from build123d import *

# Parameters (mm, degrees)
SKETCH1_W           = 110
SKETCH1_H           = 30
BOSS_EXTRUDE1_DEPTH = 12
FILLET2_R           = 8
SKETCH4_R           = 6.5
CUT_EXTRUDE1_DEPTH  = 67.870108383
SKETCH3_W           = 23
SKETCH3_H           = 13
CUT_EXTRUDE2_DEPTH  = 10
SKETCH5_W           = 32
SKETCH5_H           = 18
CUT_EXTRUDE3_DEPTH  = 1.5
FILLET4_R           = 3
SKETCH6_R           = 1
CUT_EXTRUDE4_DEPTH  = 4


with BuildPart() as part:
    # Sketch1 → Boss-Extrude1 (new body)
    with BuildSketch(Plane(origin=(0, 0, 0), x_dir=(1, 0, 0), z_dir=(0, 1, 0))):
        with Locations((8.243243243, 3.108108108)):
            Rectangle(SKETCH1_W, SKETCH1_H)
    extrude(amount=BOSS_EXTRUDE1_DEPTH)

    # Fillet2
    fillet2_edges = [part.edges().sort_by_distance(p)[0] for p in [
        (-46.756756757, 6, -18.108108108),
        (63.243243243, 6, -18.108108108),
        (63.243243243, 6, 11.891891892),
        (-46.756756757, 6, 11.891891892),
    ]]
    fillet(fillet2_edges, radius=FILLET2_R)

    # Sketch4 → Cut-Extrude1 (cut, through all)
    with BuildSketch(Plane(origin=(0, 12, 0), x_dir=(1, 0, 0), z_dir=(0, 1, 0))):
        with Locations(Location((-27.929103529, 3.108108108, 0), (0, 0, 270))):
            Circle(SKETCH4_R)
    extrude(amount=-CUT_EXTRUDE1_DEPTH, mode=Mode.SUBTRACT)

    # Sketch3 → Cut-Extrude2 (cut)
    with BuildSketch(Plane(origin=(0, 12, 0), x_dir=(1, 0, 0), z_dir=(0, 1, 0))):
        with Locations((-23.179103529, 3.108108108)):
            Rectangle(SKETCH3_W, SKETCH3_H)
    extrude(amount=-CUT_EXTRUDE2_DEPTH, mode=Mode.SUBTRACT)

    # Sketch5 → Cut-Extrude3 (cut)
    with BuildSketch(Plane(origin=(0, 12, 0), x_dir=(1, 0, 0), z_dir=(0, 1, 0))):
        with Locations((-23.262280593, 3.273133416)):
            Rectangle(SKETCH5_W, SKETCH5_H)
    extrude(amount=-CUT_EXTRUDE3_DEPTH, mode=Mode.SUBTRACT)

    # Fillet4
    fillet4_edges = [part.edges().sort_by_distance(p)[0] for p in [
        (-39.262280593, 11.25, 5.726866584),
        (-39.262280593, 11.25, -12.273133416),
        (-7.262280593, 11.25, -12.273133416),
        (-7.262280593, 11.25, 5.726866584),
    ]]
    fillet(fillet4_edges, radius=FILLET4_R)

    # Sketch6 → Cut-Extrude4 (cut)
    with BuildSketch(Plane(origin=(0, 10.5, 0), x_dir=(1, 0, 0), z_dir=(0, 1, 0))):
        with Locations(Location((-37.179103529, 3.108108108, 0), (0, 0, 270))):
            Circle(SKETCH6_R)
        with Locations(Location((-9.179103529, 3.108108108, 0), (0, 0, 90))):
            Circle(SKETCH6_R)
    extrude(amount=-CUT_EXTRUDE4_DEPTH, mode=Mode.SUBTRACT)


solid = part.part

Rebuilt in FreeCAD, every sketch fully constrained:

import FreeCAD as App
import Part
import Sketcher
from FreeCAD import Vector


def edges_at(feature, points):
    """Names of the edges that pass closest to the given points."""
    edges = feature.Shape.Edges
    near = lambda p: min(range(len(edges)), key=lambda i: edges[i].distToShape(Part.Vertex(*p))[0])
    return sorted({f"Edge{near(p) + 1}" for p in points})

doc = App.newDocument("Part")
body = doc.addObject("PartDesign::Body", "Body")

sketch1 = body.newObject("Sketcher::SketchObject", "Sketch")
sketch1.AttachmentSupport = (doc.getObject("XZ_Plane"), [""])
sketch1.MapMode = "FlatFace"
sketch1.addGeometry(Part.LineSegment(Vector(-47, -18, 0), Vector(-47, 12, 0)), False)
sketch1.addGeometry(Part.LineSegment(Vector(-47, 12, 0), Vector(63, 12, 0)), False)
sketch1.addGeometry(Part.LineSegment(Vector(63, 12, 0), Vector(63, -18, 0)), False)
sketch1.addGeometry(Part.LineSegment(Vector(63, -18, 0), Vector(-47, -18, 0)), False)
sketch1.addConstraint(Sketcher.Constraint("Coincident", 0, 2, 1, 1))
sketch1.addConstraint(Sketcher.Constraint("Coincident", 1, 2, 2, 1))
sketch1.addConstraint(Sketcher.Constraint("Coincident", 2, 2, 3, 1))
sketch1.addConstraint(Sketcher.Constraint("Coincident", 3, 2, 0, 1))
sketch1.addConstraint(Sketcher.Constraint("Vertical", 0))
sketch1.addConstraint(Sketcher.Constraint("Horizontal", 1))
sketch1.addConstraint(Sketcher.Constraint("Vertical", 2))
sketch1.addConstraint(Sketcher.Constraint("Horizontal", 3))
sketch1.addConstraint(Sketcher.Constraint("DistanceX", 1, 1, 1, 2, 110.0))
sketch1.addConstraint(Sketcher.Constraint("DistanceY", 0, 1, 0, 2, 30.0))
sketch1.addConstraint(Sketcher.Constraint("DistanceY", -1, 1, 0, 2, 11.891892))
sketch1.addConstraint(Sketcher.Constraint("DistanceX", 0, 2, -1, 1, 46.756757))
pad1 = body.newObject("PartDesign::Pad", "Pad")
pad1.Profile = sketch1
pad1.Length = 12
pad1.Reversed = True
doc.recompute()

fillet = body.newObject("PartDesign::Fillet", "Fillet")
fillet.Base = (pad1, edges_at(pad1, [
    (-46.757, 6, -18.108),
    (63.243, 6, -18.108),
    (63.243, 6, 11.892),
    (-46.757, 6, 11.892),
]))
fillet.Radius = 8

sketch2 = body.newObject("Sketcher::SketchObject", "Sketch001")
sketch2.AttachmentSupport = (doc.getObject("XZ_Plane"), [""])
sketch2.MapMode = "FlatFace"
sketch2.AttachmentOffset = App.Placement(Vector(0, 0, -12), App.Rotation())
sketch2.addGeometry(Part.Circle(Vector(-28, -3, 0), Vector(0, 0, 1), 6), False)
sketch2.addConstraint(Sketcher.Constraint("Diameter", 0, 13.0))
sketch2.addConstraint(Sketcher.Constraint("DistanceY", 0, 3, -1, 1, 3.108108))
sketch2.addConstraint(Sketcher.Constraint("DistanceX", 0, 3, -1, 1, 27.929104))
pocket1 = body.newObject("PartDesign::Pocket", "Pocket")
pocket1.Profile = sketch2
pocket1.Type = "ThroughAll"
pocket1.Reversed = True

sketch3 = body.newObject("Sketcher::SketchObject", "Sketch002")
sketch3.AttachmentSupport = (doc.getObject("XZ_Plane"), [""])
sketch3.MapMode = "FlatFace"
sketch3.AttachmentOffset = App.Placement(Vector(0, 0, -12), App.Rotation())
sketch3.addGeometry(Part.LineSegment(Vector(-35, -10, 0), Vector(-35, 3, 0)), False)
sketch3.addGeometry(Part.LineSegment(Vector(-35, 3, 0), Vector(-12, 3, 0)), False)
sketch3.addGeometry(Part.LineSegment(Vector(-12, 3, 0), Vector(-12, -10, 0)), False)
sketch3.addGeometry(Part.LineSegment(Vector(-12, -10, 0), Vector(-35, -10, 0)), False)
sketch3.addConstraint(Sketcher.Constraint("Coincident", 0, 2, 1, 1))
sketch3.addConstraint(Sketcher.Constraint("Coincident", 1, 2, 2, 1))
sketch3.addConstraint(Sketcher.Constraint("Coincident", 2, 2, 3, 1))
sketch3.addConstraint(Sketcher.Constraint("Coincident", 3, 2, 0, 1))
sketch3.addConstraint(Sketcher.Constraint("Vertical", 0))
sketch3.addConstraint(Sketcher.Constraint("Horizontal", 1))
sketch3.addConstraint(Sketcher.Constraint("Vertical", 2))
sketch3.addConstraint(Sketcher.Constraint("Horizontal", 3))
sketch3.addConstraint(Sketcher.Constraint("DistanceX", 1, 1, 1, 2, 23.0))
sketch3.addConstraint(Sketcher.Constraint("DistanceY", 0, 1, 0, 2, 13.0))
sketch3.addConstraint(Sketcher.Constraint("DistanceY", -1, 1, 0, 2, 3.391892))
sketch3.addConstraint(Sketcher.Constraint("DistanceX", 0, 2, -1, 1, 34.679104))
pocket2 = body.newObject("PartDesign::Pocket", "Pocket001")
pocket2.Profile = sketch3
pocket2.Length = 10
pocket2.Reversed = True

sketch4 = body.newObject("Sketcher::SketchObject", "Sketch003")
sketch4.AttachmentSupport = (doc.getObject("XZ_Plane"), [""])
sketch4.MapMode = "FlatFace"
sketch4.AttachmentOffset = App.Placement(Vector(0, 0, -12), App.Rotation())
sketch4.addGeometry(Part.LineSegment(Vector(-39, -12, 0), Vector(-39, 6, 0)), False)
sketch4.addGeometry(Part.LineSegment(Vector(-39, 6, 0), Vector(-7, 6, 0)), False)
sketch4.addGeometry(Part.LineSegment(Vector(-7, 6, 0), Vector(-7, -12, 0)), False)
sketch4.addGeometry(Part.LineSegment(Vector(-7, -12, 0), Vector(-39, -12, 0)), False)
sketch4.addConstraint(Sketcher.Constraint("Coincident", 0, 2, 1, 1))
sketch4.addConstraint(Sketcher.Constraint("Coincident", 1, 2, 2, 1))
sketch4.addConstraint(Sketcher.Constraint("Coincident", 2, 2, 3, 1))
sketch4.addConstraint(Sketcher.Constraint("Coincident", 3, 2, 0, 1))
sketch4.addConstraint(Sketcher.Constraint("Vertical", 0))
sketch4.addConstraint(Sketcher.Constraint("Horizontal", 1))
sketch4.addConstraint(Sketcher.Constraint("Vertical", 2))
sketch4.addConstraint(Sketcher.Constraint("Horizontal", 3))
sketch4.addConstraint(Sketcher.Constraint("DistanceX", 1, 1, 1, 2, 32.0))
sketch4.addConstraint(Sketcher.Constraint("DistanceY", 0, 1, 0, 2, 18.0))
sketch4.addConstraint(Sketcher.Constraint("DistanceX", 0, 2, -1, 1, 39.262281))
sketch4.addConstraint(Sketcher.Constraint("DistanceY", -1, 1, 0, 2, 5.726867))
pocket3 = body.newObject("PartDesign::Pocket", "Pocket002")
pocket3.Profile = sketch4
pocket3.Length = 1.5
pocket3.Reversed = True
doc.recompute()

fillet2 = body.newObject("PartDesign::Fillet", "Fillet001")
fillet2.Base = (pocket3, edges_at(pocket3, [
    (-39.262, 11.25, 5.727),
    (-39.262, 11.25, -12.273),
    (-7.262, 11.25, -12.273),
    (-7.262, 11.25, 5.727),
]))
fillet2.Radius = 3

sketch5 = body.newObject("Sketcher::SketchObject", "Sketch004")
sketch5.AttachmentSupport = (doc.getObject("XZ_Plane"), [""])
sketch5.MapMode = "FlatFace"
sketch5.AttachmentOffset = App.Placement(Vector(0, 0, -10.5), App.Rotation())
sketch5.addGeometry(Part.Circle(Vector(-37.2, -3.1, 0), Vector(0, 0, 1), 1), False)
sketch5.addGeometry(Part.Circle(Vector(-9.2, -3.1, 0), Vector(0, 0, 1), 1), False)
sketch5.addConstraint(Sketcher.Constraint("Equal", 0, 1))
sketch5.addConstraint(Sketcher.Constraint("Horizontal", 0, 3, 1, 3))
sketch5.addConstraint(Sketcher.Constraint("Diameter", 0, 2.0))
sketch5.addConstraint(Sketcher.Constraint("DistanceX", 0, 3, 1, 3, 28.0))
sketch5.addConstraint(Sketcher.Constraint("DistanceY", 0, 3, -1, 1, 3.108108))
sketch5.addConstraint(Sketcher.Constraint("DistanceX", 0, 3, -1, 1, 37.179104))
pocket4 = body.newObject("PartDesign::Pocket", "Pocket003")
pocket4.Profile = sketch5
pocket4.Length = 4
pocket4.Reversed = True

doc.recompute()
